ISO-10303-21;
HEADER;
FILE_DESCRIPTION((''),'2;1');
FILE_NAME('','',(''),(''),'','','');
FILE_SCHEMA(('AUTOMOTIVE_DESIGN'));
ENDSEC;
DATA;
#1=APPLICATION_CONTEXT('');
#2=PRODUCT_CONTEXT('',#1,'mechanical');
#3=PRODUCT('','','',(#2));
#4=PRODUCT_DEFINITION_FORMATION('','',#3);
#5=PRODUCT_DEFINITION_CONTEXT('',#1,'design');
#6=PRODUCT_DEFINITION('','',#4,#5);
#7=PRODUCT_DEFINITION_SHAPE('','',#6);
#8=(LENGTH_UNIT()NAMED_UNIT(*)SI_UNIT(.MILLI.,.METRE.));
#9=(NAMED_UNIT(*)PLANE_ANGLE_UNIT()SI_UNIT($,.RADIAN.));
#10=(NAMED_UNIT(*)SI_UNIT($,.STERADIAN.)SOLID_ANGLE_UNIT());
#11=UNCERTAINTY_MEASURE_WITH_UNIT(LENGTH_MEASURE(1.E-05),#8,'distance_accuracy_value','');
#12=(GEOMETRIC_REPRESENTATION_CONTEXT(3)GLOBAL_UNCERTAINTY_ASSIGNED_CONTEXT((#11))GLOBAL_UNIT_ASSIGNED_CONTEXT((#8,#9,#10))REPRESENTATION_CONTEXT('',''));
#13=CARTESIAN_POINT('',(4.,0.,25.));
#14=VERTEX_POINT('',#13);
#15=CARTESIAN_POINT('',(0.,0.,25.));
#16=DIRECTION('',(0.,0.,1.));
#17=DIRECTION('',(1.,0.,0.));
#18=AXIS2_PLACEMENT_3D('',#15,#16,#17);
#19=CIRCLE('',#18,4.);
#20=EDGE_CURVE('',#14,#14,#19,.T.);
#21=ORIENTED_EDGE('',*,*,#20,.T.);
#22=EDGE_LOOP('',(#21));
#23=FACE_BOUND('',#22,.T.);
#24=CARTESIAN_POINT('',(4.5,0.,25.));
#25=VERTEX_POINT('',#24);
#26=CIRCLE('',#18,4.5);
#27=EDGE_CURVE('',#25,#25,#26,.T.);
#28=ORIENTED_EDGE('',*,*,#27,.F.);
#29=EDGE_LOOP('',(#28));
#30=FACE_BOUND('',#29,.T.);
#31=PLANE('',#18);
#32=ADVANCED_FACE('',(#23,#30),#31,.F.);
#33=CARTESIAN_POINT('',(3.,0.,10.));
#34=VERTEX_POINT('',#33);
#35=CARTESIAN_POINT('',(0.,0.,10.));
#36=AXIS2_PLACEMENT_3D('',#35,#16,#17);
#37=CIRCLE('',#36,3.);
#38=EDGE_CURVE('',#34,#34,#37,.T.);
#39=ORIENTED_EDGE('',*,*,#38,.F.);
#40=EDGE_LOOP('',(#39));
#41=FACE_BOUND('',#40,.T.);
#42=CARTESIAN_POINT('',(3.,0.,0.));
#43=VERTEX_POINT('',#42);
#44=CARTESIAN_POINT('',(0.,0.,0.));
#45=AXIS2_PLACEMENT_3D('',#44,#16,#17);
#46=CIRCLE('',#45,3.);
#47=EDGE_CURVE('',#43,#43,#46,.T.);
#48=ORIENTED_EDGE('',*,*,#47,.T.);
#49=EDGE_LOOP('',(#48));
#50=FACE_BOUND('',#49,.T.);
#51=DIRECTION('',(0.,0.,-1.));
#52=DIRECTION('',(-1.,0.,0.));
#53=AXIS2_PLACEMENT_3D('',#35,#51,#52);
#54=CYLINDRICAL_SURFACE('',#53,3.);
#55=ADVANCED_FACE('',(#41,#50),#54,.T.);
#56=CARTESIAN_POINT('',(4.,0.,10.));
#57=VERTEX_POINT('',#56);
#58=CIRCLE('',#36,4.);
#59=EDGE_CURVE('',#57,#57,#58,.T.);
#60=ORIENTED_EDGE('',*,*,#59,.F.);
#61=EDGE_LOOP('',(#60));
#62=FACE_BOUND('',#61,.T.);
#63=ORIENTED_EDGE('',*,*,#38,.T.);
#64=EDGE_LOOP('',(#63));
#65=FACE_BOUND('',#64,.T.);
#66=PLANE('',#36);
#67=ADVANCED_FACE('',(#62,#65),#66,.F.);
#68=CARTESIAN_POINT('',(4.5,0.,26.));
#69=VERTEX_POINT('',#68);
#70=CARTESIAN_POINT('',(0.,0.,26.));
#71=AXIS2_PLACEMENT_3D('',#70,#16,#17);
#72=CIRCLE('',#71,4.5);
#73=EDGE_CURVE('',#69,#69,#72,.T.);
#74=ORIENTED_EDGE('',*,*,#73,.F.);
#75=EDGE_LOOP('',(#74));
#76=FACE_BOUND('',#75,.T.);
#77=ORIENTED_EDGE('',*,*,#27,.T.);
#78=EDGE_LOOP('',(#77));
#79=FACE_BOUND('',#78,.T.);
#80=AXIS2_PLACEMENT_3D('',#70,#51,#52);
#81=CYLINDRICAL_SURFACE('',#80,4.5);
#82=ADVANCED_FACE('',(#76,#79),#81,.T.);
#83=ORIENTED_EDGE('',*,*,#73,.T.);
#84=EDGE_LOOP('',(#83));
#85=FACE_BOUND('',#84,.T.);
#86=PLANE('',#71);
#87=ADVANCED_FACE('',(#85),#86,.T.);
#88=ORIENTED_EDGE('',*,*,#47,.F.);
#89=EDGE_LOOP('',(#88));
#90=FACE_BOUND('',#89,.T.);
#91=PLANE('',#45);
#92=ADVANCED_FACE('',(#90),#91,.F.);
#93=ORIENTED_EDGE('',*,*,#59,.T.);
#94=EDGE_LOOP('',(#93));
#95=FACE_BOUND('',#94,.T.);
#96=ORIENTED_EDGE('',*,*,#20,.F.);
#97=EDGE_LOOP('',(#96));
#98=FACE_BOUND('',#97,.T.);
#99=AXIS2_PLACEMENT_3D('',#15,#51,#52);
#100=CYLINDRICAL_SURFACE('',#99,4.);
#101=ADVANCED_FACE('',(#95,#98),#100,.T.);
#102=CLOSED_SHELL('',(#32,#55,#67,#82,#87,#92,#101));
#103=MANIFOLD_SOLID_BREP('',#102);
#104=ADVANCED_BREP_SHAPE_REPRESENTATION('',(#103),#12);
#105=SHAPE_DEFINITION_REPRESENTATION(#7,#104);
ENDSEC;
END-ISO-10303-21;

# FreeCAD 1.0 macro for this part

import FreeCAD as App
import Part
import Sketcher

V = App.Vector

doc = App.newDocument("Part")
params = doc.addObject("Spreadsheet::Sheet", "Params")
for row, (alias, value) in enumerate([
    ("sketch1_diameter", "6 mm"),
    ("pad1_length", "10 mm"),
    ("sketch2_diameter", "8 mm"),
    ("pad2_length", "15 mm"),
    ("sketch3_diameter", "9 mm"),
    ("pad3_length", "1 mm"),
], start=1):
    params.set(f"A{row}", alias)
    params.set(f"B{row}", "=" + value)
    params.setAlias(f"B{row}", alias)

body = doc.addObject("PartDesign::Body", "Body")

# Sketch on XY plane
sketch1 = doc.addObject("Sketcher::SketchObject", "Sketch")
body.addObject(sketch1)
sketch1.AttachmentSupport = (doc.XY_Plane, [""])
sketch1.MapMode = "FlatFace"
sketch1.addGeometry(Part.Circle(V(0, 0, 0), V(0, 0, 1), 3), False)
sketch1.addConstraint(Sketcher.Constraint("Coincident", 0, 3, -1, 1))
sketch1.addConstraint(Sketcher.Constraint("Diameter", 0, 6.0))
sketch1.setExpression("Constraints[1]", "Params.sketch1_diameter")
pad1 = doc.addObject("PartDesign::Pad", "Pad")
body.addObject(pad1)
pad1.Profile = sketch1
pad1.setExpression("Length", "Params.pad1_length")

# Sketch on XY plane
sketch2 = doc.addObject("Sketcher::SketchObject", "Sketch001")
body.addObject(sketch2)
sketch2.AttachmentSupport = (doc.XY_Plane, [""])
sketch2.MapMode = "FlatFace"
sketch2.AttachmentOffset = App.Placement(V(0, 0, 10), App.Rotation())
sketch2.addGeometry(Part.Circle(V(0, 0, 0), V(0, 0, 1), 4), False)
sketch2.addConstraint(Sketcher.Constraint("Coincident", 0, 3, -1, 1))
sketch2.addConstraint(Sketcher.Constraint("Diameter", 0, 8.0))
sketch2.setExpression("Constraints[1]", "Params.sketch2_diameter")
pad2 = doc.addObject("PartDesign::Pad", "Pad001")
body.addObject(pad2)
pad2.Profile = sketch2
pad2.setExpression("Length", "Params.pad2_length")

# Sketch on XY plane
sketch3 = doc.addObject("Sketcher::SketchObject", "Sketch002")
body.addObject(sketch3)
sketch3.AttachmentSupport = (doc.XY_Plane, [""])
sketch3.MapMode = "FlatFace"
sketch3.AttachmentOffset = App.Placement(V(0, 0, 25), App.Rotation())
sketch3.addGeometry(Part.Circle(V(0, 0, 0), V(0, 0, 1), 4.5), False)
sketch3.addConstraint(Sketcher.Constraint("Coincident", 0, 3, -1, 1))
sketch3.addConstraint(Sketcher.Constraint("Diameter", 0, 9.0))
sketch3.setExpression("Constraints[1]", "Params.sketch3_diameter")
pad3 = doc.addObject("PartDesign::Pad", "Pad002")
body.addObject(pad3)
pad3.Profile = sketch3
pad3.setExpression("Length", "Params.pad3_length")

doc.recompute()
